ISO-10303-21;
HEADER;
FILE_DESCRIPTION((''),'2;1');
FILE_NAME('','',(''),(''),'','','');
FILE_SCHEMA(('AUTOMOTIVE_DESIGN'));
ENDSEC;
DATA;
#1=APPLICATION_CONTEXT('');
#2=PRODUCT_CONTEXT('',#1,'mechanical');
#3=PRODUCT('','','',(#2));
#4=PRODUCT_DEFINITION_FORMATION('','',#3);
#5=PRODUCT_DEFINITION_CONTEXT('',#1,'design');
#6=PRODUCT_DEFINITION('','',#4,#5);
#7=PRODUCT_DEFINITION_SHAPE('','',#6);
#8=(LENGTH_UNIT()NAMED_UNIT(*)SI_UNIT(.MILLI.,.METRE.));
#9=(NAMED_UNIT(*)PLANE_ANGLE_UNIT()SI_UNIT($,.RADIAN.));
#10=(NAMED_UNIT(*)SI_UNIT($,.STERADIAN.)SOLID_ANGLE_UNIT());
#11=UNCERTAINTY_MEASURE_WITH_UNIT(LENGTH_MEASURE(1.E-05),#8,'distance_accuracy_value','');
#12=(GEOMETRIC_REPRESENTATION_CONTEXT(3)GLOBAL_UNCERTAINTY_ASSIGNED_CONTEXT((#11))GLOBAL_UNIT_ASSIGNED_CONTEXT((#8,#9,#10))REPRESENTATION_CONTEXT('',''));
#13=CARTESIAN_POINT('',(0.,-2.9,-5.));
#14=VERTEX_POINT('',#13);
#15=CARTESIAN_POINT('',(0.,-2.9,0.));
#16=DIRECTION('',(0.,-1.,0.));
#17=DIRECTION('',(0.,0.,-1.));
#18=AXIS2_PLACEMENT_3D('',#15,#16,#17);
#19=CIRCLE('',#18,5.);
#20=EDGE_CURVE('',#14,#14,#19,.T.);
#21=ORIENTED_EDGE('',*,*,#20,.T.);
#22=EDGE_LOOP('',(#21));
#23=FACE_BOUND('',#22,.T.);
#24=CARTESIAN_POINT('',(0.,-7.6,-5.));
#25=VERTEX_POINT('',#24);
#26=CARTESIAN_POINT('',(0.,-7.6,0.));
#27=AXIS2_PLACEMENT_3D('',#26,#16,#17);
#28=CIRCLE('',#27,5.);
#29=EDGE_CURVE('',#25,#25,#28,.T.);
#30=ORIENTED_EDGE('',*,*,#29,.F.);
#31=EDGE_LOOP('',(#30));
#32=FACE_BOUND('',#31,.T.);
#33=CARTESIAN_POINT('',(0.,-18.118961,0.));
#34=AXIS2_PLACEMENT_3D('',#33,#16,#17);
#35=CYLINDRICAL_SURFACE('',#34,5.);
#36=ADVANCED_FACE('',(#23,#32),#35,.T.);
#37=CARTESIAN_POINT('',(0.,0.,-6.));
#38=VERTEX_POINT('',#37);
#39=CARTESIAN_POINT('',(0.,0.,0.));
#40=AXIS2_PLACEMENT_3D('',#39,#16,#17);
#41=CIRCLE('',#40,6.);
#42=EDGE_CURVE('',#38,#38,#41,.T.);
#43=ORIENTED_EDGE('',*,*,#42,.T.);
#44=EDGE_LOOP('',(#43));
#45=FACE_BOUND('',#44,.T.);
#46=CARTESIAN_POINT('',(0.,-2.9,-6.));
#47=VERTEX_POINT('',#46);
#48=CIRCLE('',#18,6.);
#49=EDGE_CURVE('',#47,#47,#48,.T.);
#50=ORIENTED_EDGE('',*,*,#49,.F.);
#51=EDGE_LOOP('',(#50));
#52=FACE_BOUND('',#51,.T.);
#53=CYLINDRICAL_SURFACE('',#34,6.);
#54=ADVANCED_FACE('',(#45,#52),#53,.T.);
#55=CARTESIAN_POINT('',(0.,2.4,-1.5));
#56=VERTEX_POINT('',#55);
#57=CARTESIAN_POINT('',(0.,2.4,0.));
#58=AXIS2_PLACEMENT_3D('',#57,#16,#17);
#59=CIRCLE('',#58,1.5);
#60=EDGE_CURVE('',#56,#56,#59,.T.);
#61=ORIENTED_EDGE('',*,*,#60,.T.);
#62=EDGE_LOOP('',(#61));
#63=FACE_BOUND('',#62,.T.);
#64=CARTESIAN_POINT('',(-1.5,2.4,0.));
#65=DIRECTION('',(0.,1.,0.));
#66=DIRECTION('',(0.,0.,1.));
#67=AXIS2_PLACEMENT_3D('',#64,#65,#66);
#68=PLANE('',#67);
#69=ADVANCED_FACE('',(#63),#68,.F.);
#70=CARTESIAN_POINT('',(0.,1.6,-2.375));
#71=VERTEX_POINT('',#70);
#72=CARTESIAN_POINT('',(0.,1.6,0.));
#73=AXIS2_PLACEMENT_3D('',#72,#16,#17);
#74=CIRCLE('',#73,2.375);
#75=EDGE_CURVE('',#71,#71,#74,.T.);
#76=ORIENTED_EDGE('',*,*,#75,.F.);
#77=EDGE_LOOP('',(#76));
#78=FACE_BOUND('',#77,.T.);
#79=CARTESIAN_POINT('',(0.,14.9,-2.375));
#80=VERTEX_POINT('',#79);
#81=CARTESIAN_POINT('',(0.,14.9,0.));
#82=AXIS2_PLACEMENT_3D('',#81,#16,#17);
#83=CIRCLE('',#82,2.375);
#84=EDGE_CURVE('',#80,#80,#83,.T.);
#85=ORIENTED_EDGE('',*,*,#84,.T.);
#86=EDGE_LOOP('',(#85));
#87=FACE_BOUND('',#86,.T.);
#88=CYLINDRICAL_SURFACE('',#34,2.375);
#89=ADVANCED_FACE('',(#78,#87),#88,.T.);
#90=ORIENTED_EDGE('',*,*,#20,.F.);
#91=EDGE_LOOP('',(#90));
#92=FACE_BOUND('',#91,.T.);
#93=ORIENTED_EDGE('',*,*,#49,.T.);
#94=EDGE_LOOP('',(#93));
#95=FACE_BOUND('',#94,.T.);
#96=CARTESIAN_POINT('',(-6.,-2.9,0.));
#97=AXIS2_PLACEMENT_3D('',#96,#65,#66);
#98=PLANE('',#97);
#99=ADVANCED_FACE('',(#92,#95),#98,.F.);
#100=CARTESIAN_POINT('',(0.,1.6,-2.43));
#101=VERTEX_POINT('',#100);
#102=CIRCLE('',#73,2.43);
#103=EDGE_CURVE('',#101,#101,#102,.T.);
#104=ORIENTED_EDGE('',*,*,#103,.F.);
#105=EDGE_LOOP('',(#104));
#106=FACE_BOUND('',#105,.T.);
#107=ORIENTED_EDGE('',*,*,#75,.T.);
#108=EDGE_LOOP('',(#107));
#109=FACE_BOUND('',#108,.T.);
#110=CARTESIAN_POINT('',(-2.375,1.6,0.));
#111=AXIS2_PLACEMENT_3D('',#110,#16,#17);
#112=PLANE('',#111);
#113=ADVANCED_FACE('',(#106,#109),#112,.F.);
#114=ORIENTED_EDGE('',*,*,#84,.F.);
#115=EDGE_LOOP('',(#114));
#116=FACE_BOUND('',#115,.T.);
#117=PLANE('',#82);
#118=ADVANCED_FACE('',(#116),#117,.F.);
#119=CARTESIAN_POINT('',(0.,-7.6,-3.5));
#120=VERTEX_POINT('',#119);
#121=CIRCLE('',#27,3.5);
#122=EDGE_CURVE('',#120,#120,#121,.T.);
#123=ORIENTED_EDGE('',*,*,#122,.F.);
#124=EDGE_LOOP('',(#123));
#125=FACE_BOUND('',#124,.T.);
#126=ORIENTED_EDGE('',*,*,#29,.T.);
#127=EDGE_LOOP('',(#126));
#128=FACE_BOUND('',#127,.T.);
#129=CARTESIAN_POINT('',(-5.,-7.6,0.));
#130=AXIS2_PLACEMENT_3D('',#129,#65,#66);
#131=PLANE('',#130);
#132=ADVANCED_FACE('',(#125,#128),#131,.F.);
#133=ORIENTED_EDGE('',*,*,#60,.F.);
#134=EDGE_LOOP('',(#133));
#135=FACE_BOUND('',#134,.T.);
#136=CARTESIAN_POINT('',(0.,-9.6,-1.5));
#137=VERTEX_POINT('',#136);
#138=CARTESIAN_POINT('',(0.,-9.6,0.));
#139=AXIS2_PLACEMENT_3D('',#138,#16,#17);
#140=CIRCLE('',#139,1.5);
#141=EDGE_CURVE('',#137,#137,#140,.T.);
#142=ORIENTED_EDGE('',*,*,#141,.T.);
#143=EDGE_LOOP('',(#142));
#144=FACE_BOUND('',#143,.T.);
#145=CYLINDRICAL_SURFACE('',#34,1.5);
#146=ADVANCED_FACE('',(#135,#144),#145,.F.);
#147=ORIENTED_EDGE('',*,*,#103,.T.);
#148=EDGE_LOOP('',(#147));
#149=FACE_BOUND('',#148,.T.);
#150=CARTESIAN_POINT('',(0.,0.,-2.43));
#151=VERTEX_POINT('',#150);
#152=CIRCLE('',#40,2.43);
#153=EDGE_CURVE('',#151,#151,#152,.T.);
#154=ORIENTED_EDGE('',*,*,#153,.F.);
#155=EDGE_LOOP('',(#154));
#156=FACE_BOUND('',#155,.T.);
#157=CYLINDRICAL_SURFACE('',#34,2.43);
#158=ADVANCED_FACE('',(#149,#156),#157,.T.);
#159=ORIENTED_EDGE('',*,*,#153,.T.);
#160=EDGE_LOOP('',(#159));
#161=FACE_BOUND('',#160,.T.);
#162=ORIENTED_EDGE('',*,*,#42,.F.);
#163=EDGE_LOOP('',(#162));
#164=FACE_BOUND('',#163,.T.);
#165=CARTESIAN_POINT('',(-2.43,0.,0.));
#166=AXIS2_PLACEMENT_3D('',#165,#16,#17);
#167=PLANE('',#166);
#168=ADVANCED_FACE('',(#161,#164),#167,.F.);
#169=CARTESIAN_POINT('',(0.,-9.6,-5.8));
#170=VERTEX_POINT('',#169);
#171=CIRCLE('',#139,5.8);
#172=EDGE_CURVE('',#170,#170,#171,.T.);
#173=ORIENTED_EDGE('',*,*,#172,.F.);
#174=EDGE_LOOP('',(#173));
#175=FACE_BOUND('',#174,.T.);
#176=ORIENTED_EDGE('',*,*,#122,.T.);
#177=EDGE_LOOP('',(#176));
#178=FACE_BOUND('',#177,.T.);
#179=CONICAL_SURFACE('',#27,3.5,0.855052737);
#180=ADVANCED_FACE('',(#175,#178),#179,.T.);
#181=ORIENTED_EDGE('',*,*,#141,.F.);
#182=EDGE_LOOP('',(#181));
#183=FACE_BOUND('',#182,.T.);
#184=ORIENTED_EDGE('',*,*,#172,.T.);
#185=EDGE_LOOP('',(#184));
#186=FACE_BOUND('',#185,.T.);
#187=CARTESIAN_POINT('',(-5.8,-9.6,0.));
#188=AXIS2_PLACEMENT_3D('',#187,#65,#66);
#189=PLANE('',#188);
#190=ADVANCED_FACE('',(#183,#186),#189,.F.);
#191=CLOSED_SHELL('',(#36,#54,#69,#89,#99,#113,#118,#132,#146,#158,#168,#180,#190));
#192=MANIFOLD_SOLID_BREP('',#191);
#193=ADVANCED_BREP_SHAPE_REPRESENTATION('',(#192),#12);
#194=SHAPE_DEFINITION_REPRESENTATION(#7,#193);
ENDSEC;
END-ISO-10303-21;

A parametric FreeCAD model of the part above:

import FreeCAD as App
import Part
import Sketcher

V = App.Vector


def add_polygon(sketch, points):
    """Adds a closed chain of lines whose ends are joined by coincident constraints."""
    first, n = sketch.GeometryCount, len(points)
    for a, b in zip(points, points[1:] + points[:1]):
        sketch.addGeometry(Part.LineSegment(App.Vector(*a, 0), App.Vector(*b, 0)), False)
    for i in range(n):
        sketch.addConstraint(Sketcher.Constraint("Coincident", first + i, 2, first + (i + 1) % n, 1))

doc = App.newDocument("Part")
body = doc.addObject("PartDesign::Body", "Body")

sketch1 = body.newObject("Sketcher::SketchObject", "Sketch")
sketch1.AttachmentSupport = (doc.getObject("XY_Plane"), [""])
sketch1.MapMode = "FlatFace"
add_polygon(sketch1, [(0, 14.9), (-2.375, 14.9), (-2.375, 1.6), (-2.43, 1.6), (-2.43, 0), (-6, 0), (-6, -2.9), (-5, -2.9), (-5, -7.6), (-3.5, -7.6), (-5.8, -9.6), (-1.5, -9.6), (-1.5, 2.4), (0, 2.4)])
sketch1.addConstraint(Sketcher.Constraint("Horizontal", 0))
sketch1.addConstraint(Sketcher.Constraint("Vertical", 1))
sketch1.addConstraint(Sketcher.Constraint("Horizontal", 2))
sketch1.addConstraint(Sketcher.Constraint("Vertical", 3))
sketch1.addConstraint(Sketcher.Constraint("Horizontal", 4))
sketch1.addConstraint(Sketcher.Constraint("Vertical", 5))
sketch1.addConstraint(Sketcher.Constraint("Horizontal", 6))
sketch1.addConstraint(Sketcher.Constraint("Vertical", 7))
sketch1.addConstraint(Sketcher.Constraint("Horizontal", 8))
sketch1.addConstraint(Sketcher.Constraint("Horizontal", 10))
sketch1.addConstraint(Sketcher.Constraint("Vertical", 11))
sketch1.addConstraint(Sketcher.Constraint("Horizontal", 12))
sketch1.addConstraint(Sketcher.Constraint("Vertical", 13))
sketch1.addConstraint(Sketcher.Constraint("PointOnObject", 3, 2, -1))
sketch1.addConstraint(Sketcher.Constraint("PointOnObject", 12, 2, -2))
sketch1.addConstraint(Sketcher.Constraint("Equal", 8, 12))
sketch1.addConstraint(Sketcher.Constraint("DistanceX", 6, 1, 6, 2, 1.0))
sketch1.addConstraint(Sketcher.Constraint("DistanceY", 11, 1, 11, 2, 12.0))
sketch1.addConstraint(Sketcher.Constraint("DistanceX", 8, 1, 8, 2, 1.5))
sketch1.addConstraint(Sketcher.Constraint("DistanceX", 10, 1, 10, 2, 4.3))
sketch1.addConstraint(Sketcher.Constraint("DistanceY", 1, 2, 1, 1, 13.3))
sketch1.addConstraint(Sketcher.Constraint("DistanceY", 3, 2, 3, 1, 1.6))
sketch1.addConstraint(Sketcher.Constraint("DistanceY", 5, 2, 5, 1, 2.9))
sketch1.addConstraint(Sketcher.Constraint("DistanceY", 7, 2, 7, 1, 4.7))
sketch1.addConstraint(Sketcher.Constraint("DistanceY", 13, 1, 13, 2, 12.5))
sketch1.addConstraint(Sketcher.Constraint("DistanceX", 4, 2, -1, 1, 6.0))
sketch1.addConstraint(Sketcher.Constraint("DistanceX", 4, 2, 4, 1, 3.57))
sketch1.addConstraint(Sketcher.Constraint("DistanceX", 0, 2, 0, 1, 2.375))
revolution = body.newObject("PartDesign::Revolution", "Revolution")
revolution.Profile = sketch1
revolution.ReferenceAxis = (sketch1, ["V_Axis"])
revolution.Angle = 360

doc.recompute()
